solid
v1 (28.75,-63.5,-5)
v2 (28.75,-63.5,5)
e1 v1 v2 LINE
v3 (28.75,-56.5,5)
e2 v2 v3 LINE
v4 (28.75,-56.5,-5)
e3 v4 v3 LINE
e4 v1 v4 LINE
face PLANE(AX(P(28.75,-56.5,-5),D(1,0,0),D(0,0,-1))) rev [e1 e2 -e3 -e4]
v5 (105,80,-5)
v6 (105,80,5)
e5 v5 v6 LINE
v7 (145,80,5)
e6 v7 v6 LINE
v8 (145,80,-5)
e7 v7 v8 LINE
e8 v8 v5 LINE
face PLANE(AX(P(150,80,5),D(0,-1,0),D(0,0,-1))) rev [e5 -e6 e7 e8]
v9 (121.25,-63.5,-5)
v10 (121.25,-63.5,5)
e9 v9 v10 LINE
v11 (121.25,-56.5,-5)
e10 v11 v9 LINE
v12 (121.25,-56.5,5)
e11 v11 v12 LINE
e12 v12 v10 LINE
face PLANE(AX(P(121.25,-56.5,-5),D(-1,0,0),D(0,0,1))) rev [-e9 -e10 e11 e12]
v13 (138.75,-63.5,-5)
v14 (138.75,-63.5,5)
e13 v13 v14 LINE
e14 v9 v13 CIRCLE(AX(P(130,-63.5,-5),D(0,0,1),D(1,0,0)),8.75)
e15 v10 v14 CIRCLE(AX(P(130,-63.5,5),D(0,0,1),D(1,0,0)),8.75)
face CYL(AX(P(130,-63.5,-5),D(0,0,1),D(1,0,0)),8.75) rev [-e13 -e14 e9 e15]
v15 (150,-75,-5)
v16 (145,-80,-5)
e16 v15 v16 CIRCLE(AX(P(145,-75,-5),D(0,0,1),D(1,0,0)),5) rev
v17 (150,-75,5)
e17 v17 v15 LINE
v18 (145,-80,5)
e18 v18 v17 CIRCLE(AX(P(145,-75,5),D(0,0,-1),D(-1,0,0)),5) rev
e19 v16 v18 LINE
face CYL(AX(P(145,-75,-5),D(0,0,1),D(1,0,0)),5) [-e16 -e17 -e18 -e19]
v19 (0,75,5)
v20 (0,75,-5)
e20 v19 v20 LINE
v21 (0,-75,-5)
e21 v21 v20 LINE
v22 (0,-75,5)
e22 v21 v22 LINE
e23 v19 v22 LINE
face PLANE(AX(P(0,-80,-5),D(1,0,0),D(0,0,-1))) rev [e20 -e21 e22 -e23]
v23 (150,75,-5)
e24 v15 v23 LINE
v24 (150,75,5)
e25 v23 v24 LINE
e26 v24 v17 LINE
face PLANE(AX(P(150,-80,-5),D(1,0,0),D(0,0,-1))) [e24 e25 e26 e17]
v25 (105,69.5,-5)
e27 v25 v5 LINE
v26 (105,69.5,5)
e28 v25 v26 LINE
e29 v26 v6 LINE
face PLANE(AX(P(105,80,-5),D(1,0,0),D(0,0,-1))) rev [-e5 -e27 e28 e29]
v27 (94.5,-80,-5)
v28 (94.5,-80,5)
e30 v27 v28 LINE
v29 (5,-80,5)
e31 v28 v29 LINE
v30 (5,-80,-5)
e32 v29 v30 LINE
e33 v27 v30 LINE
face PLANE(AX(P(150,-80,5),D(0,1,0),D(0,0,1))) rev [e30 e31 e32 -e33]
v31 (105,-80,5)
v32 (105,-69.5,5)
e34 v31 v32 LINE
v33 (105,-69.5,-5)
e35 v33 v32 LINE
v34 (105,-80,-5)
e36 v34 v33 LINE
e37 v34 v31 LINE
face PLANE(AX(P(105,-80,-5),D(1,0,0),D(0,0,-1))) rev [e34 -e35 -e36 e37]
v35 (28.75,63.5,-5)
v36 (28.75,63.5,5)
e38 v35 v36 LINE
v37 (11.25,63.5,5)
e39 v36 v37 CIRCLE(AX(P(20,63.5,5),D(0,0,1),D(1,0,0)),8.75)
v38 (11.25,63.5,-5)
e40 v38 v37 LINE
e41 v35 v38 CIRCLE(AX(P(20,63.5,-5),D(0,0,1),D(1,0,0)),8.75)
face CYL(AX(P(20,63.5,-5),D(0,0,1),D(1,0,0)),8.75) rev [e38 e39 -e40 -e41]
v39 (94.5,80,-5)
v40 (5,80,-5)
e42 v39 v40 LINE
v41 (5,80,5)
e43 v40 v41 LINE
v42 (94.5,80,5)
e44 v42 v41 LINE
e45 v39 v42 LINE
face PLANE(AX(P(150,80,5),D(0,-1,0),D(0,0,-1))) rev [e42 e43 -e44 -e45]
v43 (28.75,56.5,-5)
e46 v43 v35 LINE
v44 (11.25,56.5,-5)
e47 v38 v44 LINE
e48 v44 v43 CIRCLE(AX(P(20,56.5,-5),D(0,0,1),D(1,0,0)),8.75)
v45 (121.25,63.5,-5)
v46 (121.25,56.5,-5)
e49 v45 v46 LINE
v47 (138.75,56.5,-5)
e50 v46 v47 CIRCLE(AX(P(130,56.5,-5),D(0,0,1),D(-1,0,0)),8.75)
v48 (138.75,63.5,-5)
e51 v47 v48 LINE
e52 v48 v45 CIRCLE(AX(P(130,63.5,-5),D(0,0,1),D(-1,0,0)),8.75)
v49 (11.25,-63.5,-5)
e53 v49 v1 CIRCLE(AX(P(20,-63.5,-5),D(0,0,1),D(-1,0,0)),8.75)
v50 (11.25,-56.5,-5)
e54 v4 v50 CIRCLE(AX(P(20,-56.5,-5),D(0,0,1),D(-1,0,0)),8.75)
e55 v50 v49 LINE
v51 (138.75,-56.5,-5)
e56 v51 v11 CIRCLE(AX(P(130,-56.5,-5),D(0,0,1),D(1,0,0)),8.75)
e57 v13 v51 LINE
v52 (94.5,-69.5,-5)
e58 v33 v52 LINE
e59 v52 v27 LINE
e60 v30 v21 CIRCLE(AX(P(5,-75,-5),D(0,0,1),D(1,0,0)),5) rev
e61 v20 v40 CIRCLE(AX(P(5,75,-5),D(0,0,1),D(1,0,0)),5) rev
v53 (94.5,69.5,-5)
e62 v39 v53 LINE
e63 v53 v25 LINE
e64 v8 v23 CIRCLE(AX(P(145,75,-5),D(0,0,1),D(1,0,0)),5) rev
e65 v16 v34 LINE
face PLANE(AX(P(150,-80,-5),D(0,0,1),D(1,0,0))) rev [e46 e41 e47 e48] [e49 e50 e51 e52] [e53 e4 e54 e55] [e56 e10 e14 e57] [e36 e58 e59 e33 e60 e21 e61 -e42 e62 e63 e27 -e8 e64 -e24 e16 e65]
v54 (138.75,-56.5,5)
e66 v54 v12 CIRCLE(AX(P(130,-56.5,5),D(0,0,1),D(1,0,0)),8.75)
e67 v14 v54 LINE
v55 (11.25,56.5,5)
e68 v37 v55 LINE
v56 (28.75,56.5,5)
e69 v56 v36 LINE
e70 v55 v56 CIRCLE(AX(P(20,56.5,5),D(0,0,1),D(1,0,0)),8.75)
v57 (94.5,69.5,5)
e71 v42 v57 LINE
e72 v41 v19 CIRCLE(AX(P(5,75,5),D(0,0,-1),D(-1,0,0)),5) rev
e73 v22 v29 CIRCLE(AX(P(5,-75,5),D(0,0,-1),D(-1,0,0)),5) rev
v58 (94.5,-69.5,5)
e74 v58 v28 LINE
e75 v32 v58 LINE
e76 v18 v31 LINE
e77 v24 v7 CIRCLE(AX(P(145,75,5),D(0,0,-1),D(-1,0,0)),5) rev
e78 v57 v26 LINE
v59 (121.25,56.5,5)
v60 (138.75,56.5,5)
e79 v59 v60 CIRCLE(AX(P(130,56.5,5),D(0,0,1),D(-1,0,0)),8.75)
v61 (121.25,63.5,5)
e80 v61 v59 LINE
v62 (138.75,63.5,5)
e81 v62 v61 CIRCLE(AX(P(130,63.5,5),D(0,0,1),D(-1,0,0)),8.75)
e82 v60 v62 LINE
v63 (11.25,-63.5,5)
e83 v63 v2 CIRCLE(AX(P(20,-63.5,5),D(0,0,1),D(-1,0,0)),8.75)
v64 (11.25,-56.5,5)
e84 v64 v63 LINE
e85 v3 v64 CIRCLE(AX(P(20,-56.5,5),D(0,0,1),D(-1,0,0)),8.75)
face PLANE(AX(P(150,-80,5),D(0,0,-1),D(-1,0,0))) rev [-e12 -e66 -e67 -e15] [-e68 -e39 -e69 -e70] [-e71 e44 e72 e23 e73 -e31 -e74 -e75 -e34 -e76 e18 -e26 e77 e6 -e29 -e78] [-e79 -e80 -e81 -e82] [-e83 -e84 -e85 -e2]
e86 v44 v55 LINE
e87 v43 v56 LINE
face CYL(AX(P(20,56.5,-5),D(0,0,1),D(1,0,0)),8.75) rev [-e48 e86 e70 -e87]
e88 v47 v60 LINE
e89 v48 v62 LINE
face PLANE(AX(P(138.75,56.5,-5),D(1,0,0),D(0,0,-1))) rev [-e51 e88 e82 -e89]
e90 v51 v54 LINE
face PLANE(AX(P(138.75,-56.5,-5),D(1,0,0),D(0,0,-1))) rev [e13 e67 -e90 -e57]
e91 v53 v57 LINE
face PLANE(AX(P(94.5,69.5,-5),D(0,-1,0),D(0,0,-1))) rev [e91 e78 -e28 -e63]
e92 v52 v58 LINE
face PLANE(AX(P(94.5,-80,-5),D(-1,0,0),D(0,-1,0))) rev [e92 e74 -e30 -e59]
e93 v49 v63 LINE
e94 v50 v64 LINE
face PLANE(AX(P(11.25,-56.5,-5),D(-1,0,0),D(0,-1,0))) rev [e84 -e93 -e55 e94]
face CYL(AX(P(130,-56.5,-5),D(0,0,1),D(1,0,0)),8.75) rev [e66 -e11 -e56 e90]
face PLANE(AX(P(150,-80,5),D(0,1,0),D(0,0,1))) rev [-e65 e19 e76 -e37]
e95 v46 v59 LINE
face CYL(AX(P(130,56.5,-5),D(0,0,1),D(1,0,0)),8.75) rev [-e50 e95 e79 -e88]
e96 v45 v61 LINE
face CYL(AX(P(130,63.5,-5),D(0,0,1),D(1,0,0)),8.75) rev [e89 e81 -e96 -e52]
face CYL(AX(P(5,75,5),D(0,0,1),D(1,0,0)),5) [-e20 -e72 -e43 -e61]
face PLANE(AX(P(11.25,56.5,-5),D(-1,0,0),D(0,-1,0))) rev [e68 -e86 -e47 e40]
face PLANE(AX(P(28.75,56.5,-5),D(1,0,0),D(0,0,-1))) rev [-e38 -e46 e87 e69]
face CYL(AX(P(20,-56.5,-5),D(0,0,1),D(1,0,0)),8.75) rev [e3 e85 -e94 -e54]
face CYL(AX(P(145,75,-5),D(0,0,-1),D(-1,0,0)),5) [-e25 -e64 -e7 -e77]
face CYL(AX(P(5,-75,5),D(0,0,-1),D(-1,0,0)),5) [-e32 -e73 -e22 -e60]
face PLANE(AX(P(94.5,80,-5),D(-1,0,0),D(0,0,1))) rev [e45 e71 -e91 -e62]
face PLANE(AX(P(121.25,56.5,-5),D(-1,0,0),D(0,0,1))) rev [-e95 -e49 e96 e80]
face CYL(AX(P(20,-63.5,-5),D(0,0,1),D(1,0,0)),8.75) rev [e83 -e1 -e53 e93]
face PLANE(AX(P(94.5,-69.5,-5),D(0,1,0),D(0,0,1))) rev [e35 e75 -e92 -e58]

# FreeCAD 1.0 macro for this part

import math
import FreeCAD as App
import Part
import Sketcher


def edges_at(feature, points):
    """Names of the edges that pass closest to the given points."""
    edges = feature.Shape.Edges
    near = lambda p: min(range(len(edges)), key=lambda i: edges[i].distToShape(Part.Vertex(*p))[0])
    return sorted({f"Edge{near(p) + 1}" for p in points})

doc = App.newDocument("Part")
params = doc.addObject("Spreadsheet::Sheet", "Params")
for row, (alias, value) in enumerate([
    ("sketch1_width", "160 mm"),
    ("sketch1_height", "10 mm"),
    ("pad1_length", "150 mm"),
    ("sketch2_diameter", "17.5 mm"),
    ("hole_diameter", "17.5 mm"),
    ("hole_depth", "10 mm"),
    ("sketch3_width", "10.5 mm"),
    ("fillet_radius", "5 mm"),
    ("sketch4_height", "7 mm"),
    ("sketch4_radius", "8.75 mm"),
    ("pocket2_length", "10 mm"),
], start=1):
    params.set(f"A{row}", alias)
    params.set(f"B{row}", "=" + value)
    params.setAlias(f"B{row}", alias)

body = doc.addObject("PartDesign::Body", "Body")

sketch1 = body.newObject("Sketcher::SketchObject", "Sketch")
sketch1.AttachmentSupport = (doc.getObject("YZ_Plane"), [""])
sketch1.MapMode = "FlatFace"
sketch1.addGeometry([
    Part.LineSegment(App.Vector(-80, 5, 0), App.Vector(-80, -5, 0)),
    Part.LineSegment(App.Vector(-80, -5, 0), App.Vector(80, -5, 0)),
    Part.LineSegment(App.Vector(80, -5, 0), App.Vector(80, 5, 0)),
    Part.LineSegment(App.Vector(80, 5, 0), App.Vector(-80, 5, 0)),
], False)
sketch1.addConstraint([
    Sketcher.Constraint("Coincident", 0, 2, 1, 1),
    Sketcher.Constraint("Coincident", 1, 2, 2, 1),
    Sketcher.Constraint("Coincident", 2, 2, 3, 1),
    Sketcher.Constraint("Coincident", 3, 2, 0, 1),
    Sketcher.Constraint("Vertical", 0),
    Sketcher.Constraint("Horizontal", 1),
    Sketcher.Constraint("Vertical", 2),
    Sketcher.Constraint("Horizontal", 3),
    Sketcher.Constraint("Symmetric", 0, 2, 2, 2, -1, 1),
    Sketcher.Constraint("DistanceX", 1, 1, 1, 2, 160.0),
    Sketcher.Constraint("DistanceY", 0, 2, 0, 1, 10.0),
])
sketch1.setExpression("Constraints[9]", "Params.sketch1_width")
sketch1.setExpression("Constraints[10]", "Params.sketch1_height")
pad1 = body.newObject("PartDesign::Pad", "Pad")
pad1.Profile = sketch1
pad1.setExpression("Length", "Params.pad1_length")

sketch2 = body.newObject("Sketcher::SketchObject", "Sketch001")
sketch2.AttachmentSupport = (doc.getObject("XY_Plane"), [""])
sketch2.MapMode = "FlatFace"
sketch2.AttachmentOffset = App.Placement(App.Vector(0, 0, 5), App.Rotation())
sketch2.addGeometry([
    Part.Circle(App.Vector(130, -60, 0), App.Vector(0, 0, 1), 9),
    Part.Circle(App.Vector(130, 60, 0), App.Vector(0, 0, 1), 9),
    Part.Circle(App.Vector(20, 60, 0), App.Vector(0, 0, 1), 9),
    Part.Circle(App.Vector(20, -60, 0), App.Vector(0, 0, 1), 9),
], False)
sketch2.addConstraint([
    Sketcher.Constraint("Equal", 0, 1),
    Sketcher.Constraint("Equal", 1, 2),
    Sketcher.Constraint("Equal", 2, 3),
    Sketcher.Constraint("Symmetric", 0, 3, 1, 3, -1),
    Sketcher.Constraint("Symmetric", 2, 3, 3, 3, -1),
    Sketcher.Constraint("Horizontal", 1, 3, 2, 3),
    Sketcher.Constraint("Diameter", 0, 17.5),
    Sketcher.Constraint("DistanceX", -1, 1, 0, 3, 130.0),
    Sketcher.Constraint("DistanceY", 0, 3, -1, 1, 60.0),
    Sketcher.Constraint("DistanceX", -1, 1, 2, 3, 20.0),
])
sketch2.setExpression("Constraints[6]", "Params.sketch2_diameter")
doc.recompute()
hole = body.newObject("PartDesign::Hole", "Hole")
hole.Profile = sketch2
hole.ThreadType = "None"
hole.setExpression("Diameter", "Params.hole_diameter")
hole.DepthType = "Dimension"
hole.setExpression("Depth", "Params.hole_depth")
hole.DrillPoint = "Angled"
hole.DrillPointAngle = 118

sketch3 = body.newObject("Sketcher::SketchObject", "Sketch002")
sketch3.AttachmentSupport = (doc.getObject("XY_Plane"), [""])
sketch3.MapMode = "FlatFace"
sketch3.AttachmentOffset = App.Placement(App.Vector(0, 0, 5), App.Rotation())
sketch3.addGeometry([
    Part.LineSegment(App.Vector(94, 80, 0), App.Vector(94, 70, 0)),
    Part.LineSegment(App.Vector(94, 70, 0), App.Vector(105, 70, 0)),
    Part.LineSegment(App.Vector(105, 70, 0), App.Vector(105, 80, 0)),
    Part.LineSegment(App.Vector(105, 80, 0), App.Vector(94, 80, 0)),
    Part.LineSegment(App.Vector(94, -70, 0), App.Vector(94, -80, 0)),
    Part.LineSegment(App.Vector(94, -80, 0), App.Vector(105, -80, 0)),
    Part.LineSegment(App.Vector(105, -80, 0), App.Vector(105, -70, 0)),
    Part.LineSegment(App.Vector(105, -70, 0), App.Vector(94, -70, 0)),
], False)
sketch3.addConstraint([
    Sketcher.Constraint("Coincident", 0, 2, 1, 1),
    Sketcher.Constraint("Coincident", 1, 2, 2, 1),
    Sketcher.Constraint("Coincident", 2, 2, 3, 1),
    Sketcher.Constraint("Coincident", 3, 2, 0, 1),
    Sketcher.Constraint("Coincident", 4, 2, 5, 1),
    Sketcher.Constraint("Coincident", 5, 2, 6, 1),
    Sketcher.Constraint("Coincident", 6, 2, 7, 1),
    Sketcher.Constraint("Coincident", 7, 2, 4, 1),
    Sketcher.Constraint("Vertical", 0),
    Sketcher.Constraint("Horizontal", 1),
    Sketcher.Constraint("Vertical", 2),
    Sketcher.Constraint("Horizontal", 3),
    Sketcher.Constraint("Vertical", 4),
    Sketcher.Constraint("Horizontal", 5),
    Sketcher.Constraint("Vertical", 6),
    Sketcher.Constraint("Horizontal", 7),
    Sketcher.Constraint("Symmetric", 3, 2, 4, 2, -1),
    Sketcher.Constraint("Symmetric", 1, 2, 6, 2, -1),
    Sketcher.Constraint("Equal", 7, 0),
    Sketcher.Constraint("DistanceX", 1, 1, 1, 2, 10.5),
    Sketcher.Constraint("DistanceX", -1, 1, 1, 2, 105.0),
    Sketcher.Constraint("DistanceY", -1, 1, 2, 2, 80.0),
])
sketch3.setExpression("Constraints[19]", "Params.sketch3_width")
pocket1 = body.newObject("PartDesign::Pocket", "Pocket")
pocket1.Profile = sketch3
pocket1.Type = "ThroughAll"
doc.recompute()

fillet = body.newObject("PartDesign::Fillet", "Fillet")
fillet.Base = (pocket1, edges_at(pocket1, [
    (150, 80, 0),
    (150, -80, 0),
    (0, 80, 0),
    (0, -80, 0),
]))
fillet.setExpression("Radius", "Params.fillet_radius")

sketch4 = body.newObject("Sketcher::SketchObject", "Sketch003")
sketch4.AttachmentSupport = (doc.getObject("XY_Plane"), [""])
sketch4.MapMode = "FlatFace"
sketch4.AttachmentOffset = App.Placement(App.Vector(0, 0, 5), App.Rotation())
sketch4.addGeometry([
    Part.LineSegment(App.Vector(11, 64, 0), App.Vector(11, 56, 0)),
    Part.ArcOfCircle(Part.Circle(App.Vector(20, 56, 0), App.Vector(0, 0, 1), 9), math.radians(180), math.radians(360)),
    Part.LineSegment(App.Vector(29, 56, 0), App.Vector(29, 64, 0)),
    Part.ArcOfCircle(Part.Circle(App.Vector(20, 64, 0), App.Vector(0, 0, 1), 9), math.radians(0), math.radians(180)),
    Part.LineSegment(App.Vector(139, 56, 0), App.Vector(139, 64, 0)),
    Part.ArcOfCircle(Part.Circle(App.Vector(130, 64, 0), App.Vector(0, 0, 1), 9), math.radians(0), math.radians(180)),
    Part.LineSegment(App.Vector(121, 64, 0), App.Vector(121, 56, 0)),
    Part.ArcOfCircle(Part.Circle(App.Vector(130, 56, 0), App.Vector(0, 0, 1), 9), math.radians(180), math.radians(360)),
    Part.LineSegment(App.Vector(139, -64, 0), App.Vector(139, -56, 0)),
    Part.ArcOfCircle(Part.Circle(App.Vector(130, -56, 0), App.Vector(0, 0, 1), 9), math.radians(0), math.radians(180)),
    Part.LineSegment(App.Vector(121, -56, 0), App.Vector(121, -64, 0)),
    Part.ArcOfCircle(Part.Circle(App.Vector(130, -64, 0), App.Vector(0, 0, 1), 9), math.radians(180), math.radians(360)),
    Part.LineSegment(App.Vector(11, -56, 0), App.Vector(11, -64, 0)),
    Part.ArcOfCircle(Part.Circle(App.Vector(20, -64, 0), App.Vector(0, 0, 1), 9), math.radians(180), math.radians(360)),
    Part.LineSegment(App.Vector(29, -64, 0), App.Vector(29, -56, 0)),
    Part.ArcOfCircle(Part.Circle(App.Vector(20, -56, 0), App.Vector(0, 0, 1), 9), math.radians(0), math.radians(180)),
], False)
sketch4.addConstraint([
    Sketcher.Constraint("Tangent", 0, 2, 1, 1),
    Sketcher.Constraint("Tangent", 1, 2, 2, 1),
    Sketcher.Constraint("Tangent", 2, 2, 3, 1),
    Sketcher.Constraint("Tangent", 3, 2, 0, 1),
    Sketcher.Constraint("Tangent", 4, 2, 5, 1),
    Sketcher.Constraint("Tangent", 5, 2, 6, 1),
    Sketcher.Constraint("Tangent", 6, 2, 7, 1),
    Sketcher.Constraint("Tangent", 7, 2, 4, 1),
    Sketcher.Constraint("Tangent", 8, 2, 9, 1),
    Sketcher.Constraint("Tangent", 9, 2, 10, 1),
    Sketcher.Constraint("Tangent", 10, 2, 11, 1),
    Sketcher.Constraint("Tangent", 11, 2, 8, 1),
    Sketcher.Constraint("Tangent", 12, 2, 13, 1),
    Sketcher.Constraint("Tangent", 13, 2, 14, 1),
    Sketcher.Constraint("Tangent", 14, 2, 15, 1),
    Sketcher.Constraint("Tangent", 15, 2, 12, 1),
    Sketcher.Constraint("Vertical", 0),
    Sketcher.Constraint("Vertical", 2),
    Sketcher.Constraint("Vertical", 4),
    Sketcher.Constraint("Vertical", 6),
    Sketcher.Constraint("Vertical", 8),
    Sketcher.Constraint("Vertical", 10),
    Sketcher.Constraint("Vertical", 12),
    Sketcher.Constraint("Vertical", 14),
    Sketcher.Constraint("Equal", 3, 5),
    Sketcher.Constraint("Equal", 7, 9),
    Sketcher.Constraint("Equal", 11, 13),
    Sketcher.Constraint("Symmetric", 7, 3, 9, 3, -1),
    Sketcher.Constraint("Symmetric", 3, 3, 13, 3, -1),
    Sketcher.Constraint("Horizontal", 3, 3, 5, 3),
    Sketcher.Constraint("Horizontal", 1, 3, 7, 3),
    Sketcher.Constraint("Horizontal", 11, 3, 13, 3),
    Sketcher.Constraint("Horizontal", 9, 3, 15, 3),
    Sketcher.Constraint("DistanceY", 0, 2, 0, 1, 7.0),
    Sketcher.Constraint("Radius", 1, 8.75),
    Sketcher.Constraint("DistanceX", -1, 1, 1, 3, 20.0),
    Sketcher.Constraint("DistanceX", -1, 1, 5, 3, 130.0),
    Sketcher.Constraint("DistanceY", 9, 3, 7, 3, 113.0),
])
sketch4.setExpression("Constraints[33]", "Params.sketch4_height")
sketch4.setExpression("Constraints[34]", "Params.sketch4_radius")
pocket2 = body.newObject("PartDesign::Pocket", "Pocket001")
pocket2.Profile = sketch4
pocket2.setExpression("Length", "Params.pocket2_length")

doc.recompute()
